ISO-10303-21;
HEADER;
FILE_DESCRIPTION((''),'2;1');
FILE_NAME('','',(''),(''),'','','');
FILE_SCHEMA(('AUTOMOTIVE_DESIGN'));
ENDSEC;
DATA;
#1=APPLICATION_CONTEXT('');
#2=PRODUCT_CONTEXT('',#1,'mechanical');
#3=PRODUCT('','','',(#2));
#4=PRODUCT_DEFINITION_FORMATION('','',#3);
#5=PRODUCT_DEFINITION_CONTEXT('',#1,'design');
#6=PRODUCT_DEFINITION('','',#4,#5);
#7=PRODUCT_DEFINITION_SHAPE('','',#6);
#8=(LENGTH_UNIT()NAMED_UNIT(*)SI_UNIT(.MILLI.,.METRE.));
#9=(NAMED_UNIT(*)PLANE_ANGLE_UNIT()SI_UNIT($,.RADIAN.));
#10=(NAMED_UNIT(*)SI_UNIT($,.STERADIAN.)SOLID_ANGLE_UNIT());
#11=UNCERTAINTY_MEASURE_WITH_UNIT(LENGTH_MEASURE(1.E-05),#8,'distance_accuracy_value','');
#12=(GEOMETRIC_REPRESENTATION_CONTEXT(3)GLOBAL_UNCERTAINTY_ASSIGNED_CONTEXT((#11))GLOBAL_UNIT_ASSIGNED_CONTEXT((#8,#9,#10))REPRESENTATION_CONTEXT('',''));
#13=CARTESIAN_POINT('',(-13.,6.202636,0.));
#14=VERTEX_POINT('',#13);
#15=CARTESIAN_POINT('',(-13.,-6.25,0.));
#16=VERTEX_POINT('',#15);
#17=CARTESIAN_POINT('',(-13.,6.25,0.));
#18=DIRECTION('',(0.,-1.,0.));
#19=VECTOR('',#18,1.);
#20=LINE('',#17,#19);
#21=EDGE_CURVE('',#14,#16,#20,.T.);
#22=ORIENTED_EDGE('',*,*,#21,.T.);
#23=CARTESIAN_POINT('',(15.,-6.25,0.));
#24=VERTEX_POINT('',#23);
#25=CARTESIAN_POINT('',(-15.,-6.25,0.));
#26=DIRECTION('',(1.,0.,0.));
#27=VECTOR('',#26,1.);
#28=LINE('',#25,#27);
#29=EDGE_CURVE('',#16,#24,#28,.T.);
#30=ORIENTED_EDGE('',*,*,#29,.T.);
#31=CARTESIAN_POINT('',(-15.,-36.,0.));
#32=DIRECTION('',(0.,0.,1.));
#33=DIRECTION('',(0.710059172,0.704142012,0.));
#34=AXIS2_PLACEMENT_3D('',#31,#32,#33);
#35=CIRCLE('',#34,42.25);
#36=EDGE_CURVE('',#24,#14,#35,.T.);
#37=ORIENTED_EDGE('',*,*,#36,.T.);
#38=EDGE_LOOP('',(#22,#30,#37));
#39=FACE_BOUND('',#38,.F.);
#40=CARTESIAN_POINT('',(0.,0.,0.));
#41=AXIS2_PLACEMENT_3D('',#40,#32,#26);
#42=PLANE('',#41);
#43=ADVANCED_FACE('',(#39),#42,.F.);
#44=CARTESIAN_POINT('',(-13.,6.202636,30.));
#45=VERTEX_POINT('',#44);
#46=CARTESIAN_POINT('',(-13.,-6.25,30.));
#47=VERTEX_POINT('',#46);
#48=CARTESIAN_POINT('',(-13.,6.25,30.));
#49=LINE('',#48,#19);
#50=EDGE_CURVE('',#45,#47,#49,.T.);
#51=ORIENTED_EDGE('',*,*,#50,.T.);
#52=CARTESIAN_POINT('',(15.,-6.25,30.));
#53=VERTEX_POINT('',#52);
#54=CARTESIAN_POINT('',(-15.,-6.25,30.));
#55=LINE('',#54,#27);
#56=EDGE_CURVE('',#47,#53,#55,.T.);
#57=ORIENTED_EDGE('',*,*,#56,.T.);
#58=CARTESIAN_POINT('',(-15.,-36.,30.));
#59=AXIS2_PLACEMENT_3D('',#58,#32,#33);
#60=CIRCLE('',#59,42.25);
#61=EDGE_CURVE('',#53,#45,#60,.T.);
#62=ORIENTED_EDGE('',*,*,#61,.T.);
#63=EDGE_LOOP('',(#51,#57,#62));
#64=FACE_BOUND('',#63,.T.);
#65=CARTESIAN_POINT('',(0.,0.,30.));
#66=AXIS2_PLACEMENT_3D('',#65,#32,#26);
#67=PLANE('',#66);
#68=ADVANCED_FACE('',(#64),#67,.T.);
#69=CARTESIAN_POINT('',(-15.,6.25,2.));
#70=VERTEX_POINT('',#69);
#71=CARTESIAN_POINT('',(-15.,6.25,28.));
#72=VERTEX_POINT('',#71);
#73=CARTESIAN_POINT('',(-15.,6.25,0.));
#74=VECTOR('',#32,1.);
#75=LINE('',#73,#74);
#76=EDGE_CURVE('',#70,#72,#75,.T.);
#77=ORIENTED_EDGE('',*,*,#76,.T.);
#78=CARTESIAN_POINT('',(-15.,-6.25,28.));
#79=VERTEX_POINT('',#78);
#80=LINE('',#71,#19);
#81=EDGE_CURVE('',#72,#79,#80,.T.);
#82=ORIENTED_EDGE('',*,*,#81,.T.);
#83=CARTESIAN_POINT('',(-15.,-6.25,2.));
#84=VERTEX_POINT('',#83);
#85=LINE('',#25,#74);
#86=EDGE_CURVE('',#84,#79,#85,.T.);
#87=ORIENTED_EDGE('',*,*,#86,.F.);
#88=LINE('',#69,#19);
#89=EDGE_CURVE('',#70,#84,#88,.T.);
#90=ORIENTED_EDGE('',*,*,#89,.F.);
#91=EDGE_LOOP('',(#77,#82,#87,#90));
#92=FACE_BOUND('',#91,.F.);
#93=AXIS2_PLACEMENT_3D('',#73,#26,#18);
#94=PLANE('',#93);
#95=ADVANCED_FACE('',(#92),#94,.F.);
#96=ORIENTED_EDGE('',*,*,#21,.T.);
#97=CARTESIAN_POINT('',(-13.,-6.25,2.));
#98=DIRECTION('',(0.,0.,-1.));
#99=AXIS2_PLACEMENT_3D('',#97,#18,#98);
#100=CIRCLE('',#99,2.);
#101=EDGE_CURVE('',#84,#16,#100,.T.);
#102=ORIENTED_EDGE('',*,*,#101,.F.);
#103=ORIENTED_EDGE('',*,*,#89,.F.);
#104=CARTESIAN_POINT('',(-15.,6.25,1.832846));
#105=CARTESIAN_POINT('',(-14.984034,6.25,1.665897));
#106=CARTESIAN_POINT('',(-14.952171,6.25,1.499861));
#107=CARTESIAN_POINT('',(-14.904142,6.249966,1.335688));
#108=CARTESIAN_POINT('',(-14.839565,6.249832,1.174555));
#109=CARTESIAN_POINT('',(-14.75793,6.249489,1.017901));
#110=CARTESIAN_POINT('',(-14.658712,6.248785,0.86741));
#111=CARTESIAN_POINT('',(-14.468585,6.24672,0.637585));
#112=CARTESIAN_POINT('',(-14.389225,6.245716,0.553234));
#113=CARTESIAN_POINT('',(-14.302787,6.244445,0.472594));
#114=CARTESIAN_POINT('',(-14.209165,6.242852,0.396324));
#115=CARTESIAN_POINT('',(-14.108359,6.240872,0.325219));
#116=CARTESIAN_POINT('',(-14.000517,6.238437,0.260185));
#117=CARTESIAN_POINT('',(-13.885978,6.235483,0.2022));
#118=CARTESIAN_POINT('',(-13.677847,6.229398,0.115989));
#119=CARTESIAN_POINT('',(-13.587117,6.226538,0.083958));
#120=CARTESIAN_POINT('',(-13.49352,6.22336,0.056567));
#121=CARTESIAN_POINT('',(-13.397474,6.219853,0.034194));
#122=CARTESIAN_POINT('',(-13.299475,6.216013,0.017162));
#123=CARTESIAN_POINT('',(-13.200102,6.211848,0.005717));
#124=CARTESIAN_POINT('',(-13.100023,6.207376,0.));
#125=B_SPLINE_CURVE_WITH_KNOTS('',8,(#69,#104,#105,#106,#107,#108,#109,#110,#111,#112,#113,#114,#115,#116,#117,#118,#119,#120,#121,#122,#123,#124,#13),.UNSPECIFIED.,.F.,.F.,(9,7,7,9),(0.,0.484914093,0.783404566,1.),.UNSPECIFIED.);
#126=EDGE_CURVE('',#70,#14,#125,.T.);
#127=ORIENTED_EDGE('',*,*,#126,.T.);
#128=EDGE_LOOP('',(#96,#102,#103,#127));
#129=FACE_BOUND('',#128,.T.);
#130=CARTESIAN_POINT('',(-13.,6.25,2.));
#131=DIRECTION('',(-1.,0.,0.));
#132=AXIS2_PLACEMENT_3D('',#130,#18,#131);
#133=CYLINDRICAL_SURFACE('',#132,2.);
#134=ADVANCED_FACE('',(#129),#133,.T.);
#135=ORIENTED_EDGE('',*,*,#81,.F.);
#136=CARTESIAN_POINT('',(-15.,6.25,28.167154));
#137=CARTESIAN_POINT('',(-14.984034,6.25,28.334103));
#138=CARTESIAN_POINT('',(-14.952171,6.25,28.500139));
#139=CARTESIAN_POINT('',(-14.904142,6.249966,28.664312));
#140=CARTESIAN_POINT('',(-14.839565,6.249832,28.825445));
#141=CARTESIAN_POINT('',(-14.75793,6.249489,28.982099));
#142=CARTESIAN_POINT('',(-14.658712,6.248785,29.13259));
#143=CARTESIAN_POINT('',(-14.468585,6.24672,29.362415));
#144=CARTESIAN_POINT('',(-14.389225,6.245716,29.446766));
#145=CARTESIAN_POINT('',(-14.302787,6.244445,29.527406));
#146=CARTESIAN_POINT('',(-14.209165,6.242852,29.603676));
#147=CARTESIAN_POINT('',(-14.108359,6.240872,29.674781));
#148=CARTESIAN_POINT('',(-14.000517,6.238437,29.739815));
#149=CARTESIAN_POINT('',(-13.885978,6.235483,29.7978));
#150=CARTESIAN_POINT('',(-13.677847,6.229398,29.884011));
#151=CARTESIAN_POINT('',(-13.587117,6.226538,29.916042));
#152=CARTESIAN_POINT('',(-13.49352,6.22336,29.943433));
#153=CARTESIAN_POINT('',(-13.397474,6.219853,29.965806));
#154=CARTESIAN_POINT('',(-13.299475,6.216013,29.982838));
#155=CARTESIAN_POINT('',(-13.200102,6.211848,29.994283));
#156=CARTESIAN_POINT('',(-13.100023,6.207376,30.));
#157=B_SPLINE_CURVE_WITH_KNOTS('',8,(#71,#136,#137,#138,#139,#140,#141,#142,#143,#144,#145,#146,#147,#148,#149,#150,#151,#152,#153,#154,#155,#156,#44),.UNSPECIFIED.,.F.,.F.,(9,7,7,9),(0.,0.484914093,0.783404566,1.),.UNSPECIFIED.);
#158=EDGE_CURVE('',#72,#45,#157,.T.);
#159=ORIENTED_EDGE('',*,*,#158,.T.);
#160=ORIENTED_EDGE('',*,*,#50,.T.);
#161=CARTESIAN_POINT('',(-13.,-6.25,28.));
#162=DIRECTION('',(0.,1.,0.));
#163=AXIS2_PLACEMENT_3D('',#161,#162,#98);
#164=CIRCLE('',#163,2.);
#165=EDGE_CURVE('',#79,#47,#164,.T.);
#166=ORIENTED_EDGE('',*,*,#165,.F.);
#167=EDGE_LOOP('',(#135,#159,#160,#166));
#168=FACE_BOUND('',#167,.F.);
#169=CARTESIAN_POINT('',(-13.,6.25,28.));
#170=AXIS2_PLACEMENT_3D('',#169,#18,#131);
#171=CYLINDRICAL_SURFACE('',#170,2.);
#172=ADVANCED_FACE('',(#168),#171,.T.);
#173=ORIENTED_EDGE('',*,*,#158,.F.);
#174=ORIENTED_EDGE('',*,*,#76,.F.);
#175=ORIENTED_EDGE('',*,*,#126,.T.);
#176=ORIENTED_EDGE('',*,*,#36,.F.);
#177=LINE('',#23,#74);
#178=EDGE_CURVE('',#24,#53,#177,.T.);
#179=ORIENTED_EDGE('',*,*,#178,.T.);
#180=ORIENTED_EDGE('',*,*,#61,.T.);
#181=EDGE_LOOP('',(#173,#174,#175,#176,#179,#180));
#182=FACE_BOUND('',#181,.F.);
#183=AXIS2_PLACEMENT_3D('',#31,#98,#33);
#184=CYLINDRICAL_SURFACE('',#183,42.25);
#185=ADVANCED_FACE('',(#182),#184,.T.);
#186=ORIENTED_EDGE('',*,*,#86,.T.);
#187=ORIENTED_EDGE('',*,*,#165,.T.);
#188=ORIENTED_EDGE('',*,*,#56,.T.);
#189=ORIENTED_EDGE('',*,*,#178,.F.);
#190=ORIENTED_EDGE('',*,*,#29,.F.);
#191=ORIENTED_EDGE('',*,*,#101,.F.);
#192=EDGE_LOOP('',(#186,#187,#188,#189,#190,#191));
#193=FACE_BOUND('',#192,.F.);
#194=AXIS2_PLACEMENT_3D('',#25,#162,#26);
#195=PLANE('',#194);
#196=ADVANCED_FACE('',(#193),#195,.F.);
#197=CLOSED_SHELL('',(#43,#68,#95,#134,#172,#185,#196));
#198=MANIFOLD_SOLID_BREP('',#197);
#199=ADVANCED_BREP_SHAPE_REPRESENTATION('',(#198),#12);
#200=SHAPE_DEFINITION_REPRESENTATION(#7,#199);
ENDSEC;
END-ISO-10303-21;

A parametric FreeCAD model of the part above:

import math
import FreeCAD as App
import Part
import Sketcher
from FreeCAD import Vector


def edges_at(feature, points):
    """Names of the edges that pass closest to the given points."""
    edges = feature.Shape.Edges
    near = lambda p: min(range(len(edges)), key=lambda i: edges[i].distToShape(Part.Vertex(*p))[0])
    return sorted({f"Edge{near(p) + 1}" for p in points})

doc = App.newDocument("Part")
params = doc.addObject("Spreadsheet::Sheet", "Params")
for row, (alias, value) in enumerate([
    ("sketch1_width", "30 mm"),
    ("sketch1_height", "12.5 mm"),
    ("pad1_length", "30 mm"),
    ("fillet_radius", "2 mm"),
], start=1):
    params.set(f"A{row}", alias)
    params.set(f"B{row}", "=" + value)
    params.setAlias(f"B{row}", alias)

body = doc.addObject("PartDesign::Body", "Body")

# Sketch on XY plane
sketch1 = body.newObject("Sketcher::SketchObject", "Sketch")
sketch1.AttachmentSupport = (doc.getObject("XY_Plane"), [""])
sketch1.MapMode = "FlatFace"
sketch1.addGeometry([
    Part.LineSegment(Vector(-15, 6, 0), Vector(-15, -6, 0)),
    Part.LineSegment(Vector(-15, -6, 0), Vector(15, -6, 0)),
    Part.ArcOfCircle(Part.Circle(Vector(-15, -36, 0), Vector(0, 0, 1), 42), math.radians(45), math.radians(90)),
], False)
sketch1.addConstraint([
    Sketcher.Constraint("Coincident", 0, 2, 1, 1),
    Sketcher.Constraint("Coincident", 1, 2, 2, 1),
    Sketcher.Constraint("Coincident", 2, 2, 0, 1),
    Sketcher.Constraint("Vertical", 0),
    Sketcher.Constraint("Horizontal", 1),
    Sketcher.Constraint("Symmetric", 1, 2, 2, 2, -1, 1),
    Sketcher.Constraint("Vertical", 2, 3, 0, 2),
    Sketcher.Constraint("DistanceX", 1, 1, 1, 2, 30.0),
    Sketcher.Constraint("DistanceY", 0, 2, 0, 1, 12.5),
])
sketch1.setExpression("Constraints[7]", "Params.sketch1_width")
sketch1.setExpression("Constraints[8]", "Params.sketch1_height")
pad1 = body.newObject("PartDesign::Pad", "Pad")
pad1.Profile = sketch1
pad1.setExpression("Length", "Params.pad1_length")
doc.recompute()

fillet = body.newObject("PartDesign::Fillet", "Fillet")
fillet.Base = (pad1, edges_at(pad1, [(-15, 0, 30), (-15, 0, 0)]))
fillet.setExpression("Radius", "Params.fillet_radius")

doc.recompute()
